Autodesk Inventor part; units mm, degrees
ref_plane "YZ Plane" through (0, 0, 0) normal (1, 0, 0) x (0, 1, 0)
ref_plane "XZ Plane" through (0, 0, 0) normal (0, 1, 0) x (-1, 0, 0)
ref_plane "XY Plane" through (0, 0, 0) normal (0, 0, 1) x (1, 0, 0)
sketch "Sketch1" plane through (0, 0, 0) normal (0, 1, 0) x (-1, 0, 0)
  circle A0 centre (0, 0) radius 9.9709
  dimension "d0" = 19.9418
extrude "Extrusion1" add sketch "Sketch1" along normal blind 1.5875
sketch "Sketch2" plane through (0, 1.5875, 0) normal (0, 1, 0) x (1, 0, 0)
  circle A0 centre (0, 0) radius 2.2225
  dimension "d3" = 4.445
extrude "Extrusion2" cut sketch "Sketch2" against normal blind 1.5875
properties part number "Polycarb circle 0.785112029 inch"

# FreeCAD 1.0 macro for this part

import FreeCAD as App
import Part
import Sketcher
Q = App.Units.Quantity

doc = App.newDocument("Part")
body = doc.addObject("PartDesign::Body", "Body")

sketch1 = body.newObject("Sketcher::SketchObject", "Sketch")
sketch1.AttachmentSupport = (doc.getObject("XZ_Plane"), [""])
sketch1.MapMode = "FlatFace"
sketch1.addGeometry(Part.Circle(App.Vector(0, 0, 0), App.Vector(0, 0, 1), 9.9709), False)
sketch1.addConstraint([
    Sketcher.Constraint("Coincident", 0, 3, -1, 1),
    Sketcher.Constraint("Diameter", 0, Q("0.7851 in")),
])
pad1 = body.newObject("PartDesign::Pad", "Pad")
pad1.Profile = sketch1
pad1.Length = Q("0.0625 in")
pad1.Reversed = True

sketch2 = body.newObject("Sketcher::SketchObject", "Sketch001")
sketch2.AttachmentSupport = (doc.getObject("XZ_Plane"), [""])
sketch2.MapMode = "FlatFace"
sketch2.AttachmentOffset = App.Placement(App.Vector(0, 0, -0.0625 * 25.4), App.Rotation())
sketch2.addGeometry(Part.Circle(App.Vector(0, 0, 0), App.Vector(0, 0, 1), 2.2225), False)
sketch2.addConstraint([
    Sketcher.Constraint("Coincident", 0, 3, -1, 1),
    Sketcher.Constraint("Diameter", 0, Q("0.175 in")),
])
pocket1 = body.newObject("PartDesign::Pocket", "Pocket")
pocket1.Profile = sketch2
pocket1.Length = Q("0.0625 in")
pocket1.Reversed = True

doc.recompute()
